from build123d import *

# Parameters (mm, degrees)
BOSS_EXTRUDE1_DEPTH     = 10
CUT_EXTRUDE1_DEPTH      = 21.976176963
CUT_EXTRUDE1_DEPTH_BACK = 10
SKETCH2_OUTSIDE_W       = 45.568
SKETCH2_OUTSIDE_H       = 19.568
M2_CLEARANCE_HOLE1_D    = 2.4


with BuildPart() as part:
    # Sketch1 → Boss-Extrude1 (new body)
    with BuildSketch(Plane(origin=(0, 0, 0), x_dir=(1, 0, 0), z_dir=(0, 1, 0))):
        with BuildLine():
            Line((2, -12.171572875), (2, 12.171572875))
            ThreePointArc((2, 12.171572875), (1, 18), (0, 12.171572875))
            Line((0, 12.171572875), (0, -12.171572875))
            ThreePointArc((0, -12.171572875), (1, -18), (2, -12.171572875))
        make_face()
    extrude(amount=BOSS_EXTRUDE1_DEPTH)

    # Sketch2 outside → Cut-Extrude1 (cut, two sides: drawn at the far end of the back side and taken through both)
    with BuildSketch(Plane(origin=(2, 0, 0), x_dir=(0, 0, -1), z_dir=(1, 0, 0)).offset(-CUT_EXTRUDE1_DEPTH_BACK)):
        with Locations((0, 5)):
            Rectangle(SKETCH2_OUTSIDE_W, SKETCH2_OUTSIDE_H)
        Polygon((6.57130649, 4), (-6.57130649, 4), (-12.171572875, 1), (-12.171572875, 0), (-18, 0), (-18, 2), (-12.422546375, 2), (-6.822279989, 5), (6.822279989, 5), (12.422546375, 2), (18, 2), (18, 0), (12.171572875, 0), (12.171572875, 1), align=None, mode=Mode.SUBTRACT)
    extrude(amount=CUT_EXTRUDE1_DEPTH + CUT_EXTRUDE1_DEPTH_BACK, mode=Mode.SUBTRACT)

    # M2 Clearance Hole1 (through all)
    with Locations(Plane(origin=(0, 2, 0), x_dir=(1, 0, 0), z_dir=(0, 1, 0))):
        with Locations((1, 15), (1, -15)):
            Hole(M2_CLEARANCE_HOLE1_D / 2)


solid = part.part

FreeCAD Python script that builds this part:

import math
import FreeCAD as App
import Part
import Sketcher
from FreeCAD import Vector
Q = App.Units.Quantity

doc = App.newDocument("Part")
body = doc.addObject("PartDesign::Body", "Body")

# Sketch on XZ plane
sketch1 = body.newObject("Sketcher::SketchObject", "Sketch")
sketch1.AttachmentSupport = (doc.getObject("XZ_Plane"), [""])
sketch1.MapMode = "FlatFace"
sketch1.addGeometry(Part.LineSegment(Vector(2, 12.2, 0), Vector(2, -12.2, 0)), False)
sketch1.addGeometry(Part.ArcOfCircle(Part.Circle(Vector(1, -15, 0), Vector(0, 0, 1), 3), math.radians(109), math.radians(431)), False)
sketch1.addGeometry(Part.LineSegment(Vector(0, -12.2, 0), Vector(0, 12.2, 0)), False)
sketch1.addGeometry(Part.ArcOfCircle(Part.Circle(Vector(1, 15, 0), Vector(0, 0, 1), 3), math.radians(-71), math.radians(251)), False)
sketch1.addConstraint(Sketcher.Constraint("Coincident", 0, 2, 1, 2))
sketch1.addConstraint(Sketcher.Constraint("Coincident", 1, 1, 2, 1))
sketch1.addConstraint(Sketcher.Constraint("Coincident", 2, 2, 3, 2))
sketch1.addConstraint(Sketcher.Constraint("Coincident", 3, 1, 0, 1))
sketch1.addConstraint(Sketcher.Constraint("Vertical", 0))
sketch1.addConstraint(Sketcher.Constraint("Vertical", 2))
sketch1.addConstraint(Sketcher.Constraint("Equal", 1, 3))
sketch1.addConstraint(Sketcher.Constraint("Symmetric", 1, 1, 2, 2, -1, 1))
sketch1.addConstraint(Sketcher.Constraint("Horizontal", 0, 2, 1, 1))
sketch1.addConstraint(Sketcher.Constraint("Horizontal", 2, 2, 3, 1))
sketch1.addConstraint(Sketcher.Constraint("Radius", 1, Q("3 mm")))
sketch1.addConstraint(Sketcher.Constraint("DistanceX", -1, 1, 1, 3, Q("1 mm")))
sketch1.addConstraint(Sketcher.Constraint("DistanceY", 1, 3, -1, 1, Q("15 mm")))
pad1 = body.newObject("PartDesign::Pad", "Pad")
pad1.Profile = sketch1
pad1.Length = 10
pad1.Reversed = True

# Sketch on YZ plane
sketch2 = body.newObject("Sketcher::SketchObject", "Sketch001")
sketch2.AttachmentSupport = (doc.getObject("YZ_Plane"), [""])
sketch2.MapMode = "FlatFace"
sketch2.AttachmentOffset = App.Placement(Vector(0, 0, 2), App.Rotation())
sketch2.addGeometry(Part.LineSegment(Vector(14.8, 22.8, 0), Vector(-4.8, 22.8, 0)), False)
sketch2.addGeometry(Part.LineSegment(Vector(-4.8, 22.8, 0), Vector(-4.8, -22.8, 0)), False)
sketch2.addGeometry(Part.LineSegment(Vector(-4.8, -22.8, 0), Vector(14.8, -22.8, 0)), False)
sketch2.addGeometry(Part.LineSegment(Vector(14.8, -22.8, 0), Vector(14.8, 22.8, 0)), False)
sketch2.addGeometry(Part.LineSegment(Vector(1, -12.2, 0), Vector(4, -6.6, 0)), False)
sketch2.addGeometry(Part.LineSegment(Vector(4, -6.6, 0), Vector(4, 6.6, 0)), False)
sketch2.addGeometry(Part.LineSegment(Vector(4, 6.6, 0), Vector(1, 12.2, 0)), False)
sketch2.addGeometry(Part.LineSegment(Vector(1, 12.2, 0), Vector(0, 12.2, 0)), False)
sketch2.addGeometry(Part.LineSegment(Vector(0, 12.2, 0), Vector(0, 18, 0)), False)
sketch2.addGeometry(Part.LineSegment(Vector(0, 18, 0), Vector(2, 18, 0)), False)
sketch2.addGeometry(Part.LineSegment(Vector(2, 18, 0), Vector(2, 12.4, 0)), False)
sketch2.addGeometry(Part.LineSegment(Vector(2, 12.4, 0), Vector(5, 6.8, 0)), False)
sketch2.addGeometry(Part.LineSegment(Vector(5, 6.8, 0), Vector(5, -6.8, 0)), False)
sketch2.addGeometry(Part.LineSegment(Vector(5, -6.8, 0), Vector(2, -12.4, 0)), False)
sketch2.addGeometry(Part.LineSegment(Vector(2, -12.4, 0), Vector(2, -18, 0)), False)
sketch2.addGeometry(Part.LineSegment(Vector(2, -18, 0), Vector(0, -18, 0)), False)
sketch2.addGeometry(Part.LineSegment(Vector(0, -18, 0), Vector(0, -12.2, 0)), False)
sketch2.addGeometry(Part.LineSegment(Vector(0, -12.2, 0), Vector(1, -12.2, 0)), False)
sketch2.addConstraint(Sketcher.Constraint("Coincident", 0, 2, 1, 1))
sketch2.addConstraint(Sketcher.Constraint("Coincident", 1, 2, 2, 1))
sketch2.addConstraint(Sketcher.Constraint("Coincident", 2, 2, 3, 1))
sketch2.addConstraint(Sketcher.Constraint("Coincident", 3, 2, 0, 1))
sketch2.addConstraint(Sketcher.Constraint("Coincident", 4, 2, 5, 1))
sketch2.addConstraint(Sketcher.Constraint("Coincident", 5, 2, 6, 1))
sketch2.addConstraint(Sketcher.Constraint("Coincident", 6, 2, 7, 1))
sketch2.addConstraint(Sketcher.Constraint("Coincident", 7, 2, 8, 1))
sketch2.addConstraint(Sketcher.Constraint("Coincident", 8, 2, 9, 1))
sketch2.addConstraint(Sketcher.Constraint("Coincident", 9, 2, 10, 1))
sketch2.addConstraint(Sketcher.Constraint("Coincident", 10, 2, 11, 1))
sketch2.addConstraint(Sketcher.Constraint("Coincident", 11, 2, 12, 1))
sketch2.addConstraint(Sketcher.Constraint("Coincident", 12, 2, 13, 1))
sketch2.addConstraint(Sketcher.Constraint("Coincident", 13, 2, 14, 1))
sketch2.addConstraint(Sketcher.Constraint("Coincident", 14, 2, 15, 1))
sketch2.addConstraint(Sketcher.Constraint("Coincident", 15, 2, 16, 1))
sketch2.addConstraint(Sketcher.Constraint("Coincident", 16, 2, 17, 1))
sketch2.addConstraint(Sketcher.Constraint("Coincident", 17, 2, 4, 1))
sketch2.addConstraint(Sketcher.Constraint("Horizontal", 0))
sketch2.addConstraint(Sketcher.Constraint("Vertical", 1))
sketch2.addConstraint(Sketcher.Constraint("Horizontal", 2))
sketch2.addConstraint(Sketcher.Constraint("Vertical", 3))
sketch2.addConstraint(Sketcher.Constraint("Vertical", 5))
sketch2.addConstraint(Sketcher.Constraint("Horizontal", 7))
sketch2.addConstraint(Sketcher.Constraint("Vertical", 8))
sketch2.addConstraint(Sketcher.Constraint("Horizontal", 9))
sketch2.addConstraint(Sketcher.Constraint("Vertical", 10))
sketch2.addConstraint(Sketcher.Constraint("Vertical", 12))
sketch2.addConstraint(Sketcher.Constraint("Vertical", 14))
sketch2.addConstraint(Sketcher.Constraint("Horizontal", 15))
sketch2.addConstraint(Sketcher.Constraint("Vertical", 16))
sketch2.addConstraint(Sketcher.Constraint("Horizontal", 17))
sketch2.addConstraint(Sketcher.Constraint("Symmetric", 8, 2, 15, 2, -1, 1))
sketch2.addConstraint(Sketcher.Constraint("Symmetric", 10, 2, 13, 2, -1))
sketch2.addConstraint(Sketcher.Constraint("Symmetric", 7, 2, 16, 2, -1))
sketch2.addConstraint(Sketcher.Constraint("Parallel", 6, 11))
sketch2.addConstraint(Sketcher.Constraint("Parallel", 4, 13))
sketch2.addConstraint(Sketcher.Constraint("Vertical", 6, 2, 17, 2))
sketch2.addConstraint(Sketcher.Constraint("Equal", 4, 6))
sketch2.addConstraint(Sketcher.Constraint("Equal", 6, 11))
sketch2.addConstraint(Sketcher.Constraint("DistanceX", 7, 2, 7, 1, Q("1 mm")))
sketch2.addConstraint(Sketcher.Constraint("DistanceX", 9, 1, 9, 2, Q("2 mm")))
sketch2.addConstraint(Sketcher.Constraint("DistanceX", -1, 1, 4, 2, Q("4 mm")))
sketch2.addConstraint(Sketcher.Constraint("DistanceY", -1, 1, 8, 2, Q("18 mm")))
sketch2.addConstraint(Sketcher.Constraint("DistanceX", 0, 2, 0, 1, Q("19.568 mm")))
sketch2.addConstraint(Sketcher.Constraint("DistanceY", 1, 2, 1, 1, Q("45.568 mm")))
sketch2.addConstraint(Sketcher.Constraint("DistanceX", 0, 2, -1, 1, Q("4.784 mm")))
sketch2.addConstraint(Sketcher.Constraint("DistanceY", -1, 1, 0, 2, Q("22.784 mm")))
sketch2.addConstraint(Sketcher.Constraint("DistanceY", 12, 2, 12, 1, Q("13.64456 mm")))
sketch2.addConstraint(Sketcher.Constraint("DistanceY", 5, 1, 5, 2, Q("13.142613 mm")))
sketch2.addConstraint(Sketcher.Constraint("DistanceY", 8, 1, 8, 2, Q("5.828427 mm")))
pocket1 = body.newObject("PartDesign::Pocket", "Pocket")
pocket1.Profile = sketch2
pocket1.Type = "ThroughAll"
pocket1.Midplane = True

# Sketch on XZ plane
sketch3 = body.newObject("Sketcher::SketchObject", "Sketch002")
sketch3.AttachmentSupport = (doc.getObject("XZ_Plane"), [""])
sketch3.MapMode = "FlatFace"
sketch3.AttachmentOffset = App.Placement(Vector(0, 0, -2), App.Rotation())
sketch3.addGeometry(Part.Circle(Vector(1, -15, 0), Vector(0, 0, 1), 1.2), False)
sketch3.addGeometry(Part.Circle(Vector(1, 15, 0), Vector(0, 0, 1), 1.2), False)
sketch3.addConstraint(Sketcher.Constraint("Equal", 0, 1))
sketch3.addConstraint(Sketcher.Constraint("Symmetric", 0, 3, 1, 3, -1))
sketch3.addConstraint(Sketcher.Constraint("Diameter", 0, Q("2.4 mm")))
sketch3.addConstraint(Sketcher.Constraint("DistanceX", -1, 1, 0, 3, Q("1 mm")))
sketch3.addConstraint(Sketcher.Constraint("DistanceY", 0, 3, -1, 1, Q("15 mm")))
doc.recompute()
hole = body.newObject("PartDesign::Hole", "Hole")
hole.Profile = sketch3
hole.ThreadType = "None"
hole.Diameter = 2.4
hole.DepthType = "ThroughAll"
hole.Reversed = True

doc.recompute()
